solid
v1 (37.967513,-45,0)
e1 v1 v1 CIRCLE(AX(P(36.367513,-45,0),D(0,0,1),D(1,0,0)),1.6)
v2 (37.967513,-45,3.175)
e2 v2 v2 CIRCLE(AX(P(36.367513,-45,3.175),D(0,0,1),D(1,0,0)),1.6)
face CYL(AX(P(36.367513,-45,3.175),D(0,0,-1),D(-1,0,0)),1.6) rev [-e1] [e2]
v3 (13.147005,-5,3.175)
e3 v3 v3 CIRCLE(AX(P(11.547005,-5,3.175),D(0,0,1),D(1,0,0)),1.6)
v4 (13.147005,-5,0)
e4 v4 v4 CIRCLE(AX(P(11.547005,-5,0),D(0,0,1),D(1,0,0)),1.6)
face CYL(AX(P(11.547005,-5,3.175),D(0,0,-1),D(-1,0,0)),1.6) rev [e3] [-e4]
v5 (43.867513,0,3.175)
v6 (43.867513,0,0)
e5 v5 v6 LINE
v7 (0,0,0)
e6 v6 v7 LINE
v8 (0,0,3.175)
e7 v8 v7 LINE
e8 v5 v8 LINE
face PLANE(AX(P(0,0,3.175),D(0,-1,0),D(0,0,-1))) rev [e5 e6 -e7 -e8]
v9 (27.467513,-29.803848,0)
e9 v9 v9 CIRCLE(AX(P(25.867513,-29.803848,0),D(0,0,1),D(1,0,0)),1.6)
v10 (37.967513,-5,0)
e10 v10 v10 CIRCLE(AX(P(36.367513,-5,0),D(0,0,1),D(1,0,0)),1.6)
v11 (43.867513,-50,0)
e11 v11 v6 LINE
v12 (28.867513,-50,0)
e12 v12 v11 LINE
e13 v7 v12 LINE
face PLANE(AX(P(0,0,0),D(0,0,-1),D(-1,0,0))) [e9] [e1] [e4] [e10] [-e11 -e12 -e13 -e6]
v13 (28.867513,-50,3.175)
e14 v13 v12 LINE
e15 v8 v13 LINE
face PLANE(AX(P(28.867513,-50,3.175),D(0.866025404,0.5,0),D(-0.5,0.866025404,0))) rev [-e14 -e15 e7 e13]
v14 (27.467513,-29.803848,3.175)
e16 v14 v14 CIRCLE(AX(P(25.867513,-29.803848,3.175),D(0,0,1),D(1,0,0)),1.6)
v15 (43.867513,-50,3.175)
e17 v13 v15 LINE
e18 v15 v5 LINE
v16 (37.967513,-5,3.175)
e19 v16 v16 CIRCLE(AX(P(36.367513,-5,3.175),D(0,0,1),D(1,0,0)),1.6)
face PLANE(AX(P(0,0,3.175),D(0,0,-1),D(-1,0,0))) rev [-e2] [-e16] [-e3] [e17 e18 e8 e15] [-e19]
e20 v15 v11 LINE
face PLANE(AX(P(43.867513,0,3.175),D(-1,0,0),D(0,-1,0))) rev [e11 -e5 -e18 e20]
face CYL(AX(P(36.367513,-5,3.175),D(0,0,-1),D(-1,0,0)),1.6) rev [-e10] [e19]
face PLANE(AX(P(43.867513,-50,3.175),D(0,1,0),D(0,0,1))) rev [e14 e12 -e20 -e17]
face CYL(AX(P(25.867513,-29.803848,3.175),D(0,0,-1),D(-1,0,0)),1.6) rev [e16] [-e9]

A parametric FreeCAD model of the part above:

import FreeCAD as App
import Part
import Sketcher
from FreeCAD import Vector
Q = App.Units.Quantity


def add_polygon(sketch, points):
    """Adds a closed chain of lines whose ends are joined by coincident constraints."""
    first, n = sketch.GeometryCount, len(points)
    for a, b in zip(points, points[1:] + points[:1]):
        sketch.addGeometry(Part.LineSegment(App.Vector(*a, 0), App.Vector(*b, 0)), False)
    for i in range(n):
        sketch.addConstraint(Sketcher.Constraint("Coincident", first + i, 2, first + (i + 1) % n, 1))

doc = App.newDocument("Part")
body = doc.addObject("PartDesign::Body", "Body")

sketch1 = body.newObject("Sketcher::SketchObject", "Sketch")
sketch1.AttachmentSupport = (doc.getObject("XY_Plane"), [""])
sketch1.MapMode = "FlatFace"
add_polygon(sketch1, [(43.9, 0), (0, 0), (28.9, -50), (43.9, -50)])
sketch1.addGeometry(Part.Circle(Vector(36.4, -45, 0), Vector(0, 0, 1), 1.6), False)
sketch1.addGeometry(Part.Circle(Vector(25.9, -29.8, 0), Vector(0, 0, 1), 1.6), False)
sketch1.addGeometry(Part.Circle(Vector(36.4, -5, 0), Vector(0, 0, 1), 1.6), False)
sketch1.addGeometry(Part.Circle(Vector(11.5, -5, 0), Vector(0, 0, 1), 1.6), False)
sketch1.addConstraint(Sketcher.Constraint("Horizontal", 0))
sketch1.addConstraint(Sketcher.Constraint("Horizontal", 2))
sketch1.addConstraint(Sketcher.Constraint("Vertical", 3))
sketch1.addConstraint(Sketcher.Constraint("Coincident", 0, 2, -1, 1))
sketch1.addConstraint(Sketcher.Constraint("Equal", 4, 5))
sketch1.addConstraint(Sketcher.Constraint("Equal", 5, 6))
sketch1.addConstraint(Sketcher.Constraint("Equal", 6, 7))
sketch1.addConstraint(Sketcher.Constraint("Horizontal", 6, 3, 7, 3))
sketch1.addConstraint(Sketcher.Constraint("Vertical", 4, 3, 6, 3))
sketch1.addConstraint(Sketcher.Constraint("Diameter", 4, Q("3.2 mm")))
sketch1.addConstraint(Sketcher.Constraint("DistanceX", 2, 1, 2, 2, Q("15 mm")))
sketch1.addConstraint(Sketcher.Constraint("DistanceY", 3, 1, 3, 2, Q("50 mm")))
sketch1.addConstraint(Sketcher.Constraint("Angle", 1, Q("-60 deg")))
sketch1.addConstraint(Sketcher.Constraint("DistanceY", 4, 3, -1, 1, Q("45 mm")))
sketch1.addConstraint(Sketcher.Constraint("DistanceY", 6, 3, -1, 1, Q("5 mm")))
sketch1.addConstraint(Sketcher.Constraint("DistanceX", 5, 3, 1, 2, Q("3 mm")))
sketch1.addConstraint(Sketcher.Constraint("DistanceX", 5, 3, 4, 3, Q("10.5 mm")))
sketch1.addConstraint(Sketcher.Constraint("DistanceX", 7, 3, 6, 3, Q("24.820508 mm")))
sketch1.addConstraint(Sketcher.Constraint("DistanceY", 5, 3, -1, 1, Q("29.803848 mm")))
pad1 = body.newObject("PartDesign::Pad", "Pad")
pad1.Profile = sketch1
pad1.Length = 3.175

doc.recompute()
